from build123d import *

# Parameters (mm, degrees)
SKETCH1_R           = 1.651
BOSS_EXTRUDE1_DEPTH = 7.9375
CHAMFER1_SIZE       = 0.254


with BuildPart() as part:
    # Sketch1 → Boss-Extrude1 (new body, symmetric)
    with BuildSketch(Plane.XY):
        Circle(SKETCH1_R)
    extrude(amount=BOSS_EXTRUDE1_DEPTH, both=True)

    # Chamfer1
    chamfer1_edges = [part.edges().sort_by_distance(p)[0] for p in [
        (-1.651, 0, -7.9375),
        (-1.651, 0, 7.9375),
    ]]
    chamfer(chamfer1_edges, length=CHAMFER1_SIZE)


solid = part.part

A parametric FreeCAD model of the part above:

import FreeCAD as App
import Part
import Sketcher
Q = App.Units.Quantity


def edges_at(feature, points):
    """Names of the edges that pass closest to the given points."""
    edges = feature.Shape.Edges
    near = lambda p: min(range(len(edges)), key=lambda i: edges[i].distToShape(Part.Vertex(*p))[0])
    return sorted({f"Edge{near(p) + 1}" for p in points})

doc = App.newDocument("Part")
body = doc.addObject("PartDesign::Body", "Body")

# Sketch on XY plane
sketch1 = body.newObject("Sketcher::SketchObject", "Sketch")
sketch1.AttachmentSupport = (doc.getObject("XY_Plane"), [""])
sketch1.MapMode = "FlatFace"
sketch1.addGeometry(Part.Circle(App.Vector(0, 0, 0), App.Vector(0, 0, 1), 1.7), False)
sketch1.addConstraint(Sketcher.Constraint("Coincident", 0, 3, -1, 1))
sketch1.addConstraint(Sketcher.Constraint("Diameter", 0, Q("0.13 in")))
pad1 = body.newObject("PartDesign::Pad", "Pad")
pad1.Profile = sketch1
pad1.Length = Q("0.625 in")
pad1.Midplane = True
doc.recompute()

chamfer = body.newObject("PartDesign::Chamfer", "Chamfer")
chamfer.Base = (pad1, edges_at(pad1, [(-1.651, 0, -7.938), (-1.651, 0, 7.938)]))
chamfer.Size = Q("0.01 in")

doc.recompute()
